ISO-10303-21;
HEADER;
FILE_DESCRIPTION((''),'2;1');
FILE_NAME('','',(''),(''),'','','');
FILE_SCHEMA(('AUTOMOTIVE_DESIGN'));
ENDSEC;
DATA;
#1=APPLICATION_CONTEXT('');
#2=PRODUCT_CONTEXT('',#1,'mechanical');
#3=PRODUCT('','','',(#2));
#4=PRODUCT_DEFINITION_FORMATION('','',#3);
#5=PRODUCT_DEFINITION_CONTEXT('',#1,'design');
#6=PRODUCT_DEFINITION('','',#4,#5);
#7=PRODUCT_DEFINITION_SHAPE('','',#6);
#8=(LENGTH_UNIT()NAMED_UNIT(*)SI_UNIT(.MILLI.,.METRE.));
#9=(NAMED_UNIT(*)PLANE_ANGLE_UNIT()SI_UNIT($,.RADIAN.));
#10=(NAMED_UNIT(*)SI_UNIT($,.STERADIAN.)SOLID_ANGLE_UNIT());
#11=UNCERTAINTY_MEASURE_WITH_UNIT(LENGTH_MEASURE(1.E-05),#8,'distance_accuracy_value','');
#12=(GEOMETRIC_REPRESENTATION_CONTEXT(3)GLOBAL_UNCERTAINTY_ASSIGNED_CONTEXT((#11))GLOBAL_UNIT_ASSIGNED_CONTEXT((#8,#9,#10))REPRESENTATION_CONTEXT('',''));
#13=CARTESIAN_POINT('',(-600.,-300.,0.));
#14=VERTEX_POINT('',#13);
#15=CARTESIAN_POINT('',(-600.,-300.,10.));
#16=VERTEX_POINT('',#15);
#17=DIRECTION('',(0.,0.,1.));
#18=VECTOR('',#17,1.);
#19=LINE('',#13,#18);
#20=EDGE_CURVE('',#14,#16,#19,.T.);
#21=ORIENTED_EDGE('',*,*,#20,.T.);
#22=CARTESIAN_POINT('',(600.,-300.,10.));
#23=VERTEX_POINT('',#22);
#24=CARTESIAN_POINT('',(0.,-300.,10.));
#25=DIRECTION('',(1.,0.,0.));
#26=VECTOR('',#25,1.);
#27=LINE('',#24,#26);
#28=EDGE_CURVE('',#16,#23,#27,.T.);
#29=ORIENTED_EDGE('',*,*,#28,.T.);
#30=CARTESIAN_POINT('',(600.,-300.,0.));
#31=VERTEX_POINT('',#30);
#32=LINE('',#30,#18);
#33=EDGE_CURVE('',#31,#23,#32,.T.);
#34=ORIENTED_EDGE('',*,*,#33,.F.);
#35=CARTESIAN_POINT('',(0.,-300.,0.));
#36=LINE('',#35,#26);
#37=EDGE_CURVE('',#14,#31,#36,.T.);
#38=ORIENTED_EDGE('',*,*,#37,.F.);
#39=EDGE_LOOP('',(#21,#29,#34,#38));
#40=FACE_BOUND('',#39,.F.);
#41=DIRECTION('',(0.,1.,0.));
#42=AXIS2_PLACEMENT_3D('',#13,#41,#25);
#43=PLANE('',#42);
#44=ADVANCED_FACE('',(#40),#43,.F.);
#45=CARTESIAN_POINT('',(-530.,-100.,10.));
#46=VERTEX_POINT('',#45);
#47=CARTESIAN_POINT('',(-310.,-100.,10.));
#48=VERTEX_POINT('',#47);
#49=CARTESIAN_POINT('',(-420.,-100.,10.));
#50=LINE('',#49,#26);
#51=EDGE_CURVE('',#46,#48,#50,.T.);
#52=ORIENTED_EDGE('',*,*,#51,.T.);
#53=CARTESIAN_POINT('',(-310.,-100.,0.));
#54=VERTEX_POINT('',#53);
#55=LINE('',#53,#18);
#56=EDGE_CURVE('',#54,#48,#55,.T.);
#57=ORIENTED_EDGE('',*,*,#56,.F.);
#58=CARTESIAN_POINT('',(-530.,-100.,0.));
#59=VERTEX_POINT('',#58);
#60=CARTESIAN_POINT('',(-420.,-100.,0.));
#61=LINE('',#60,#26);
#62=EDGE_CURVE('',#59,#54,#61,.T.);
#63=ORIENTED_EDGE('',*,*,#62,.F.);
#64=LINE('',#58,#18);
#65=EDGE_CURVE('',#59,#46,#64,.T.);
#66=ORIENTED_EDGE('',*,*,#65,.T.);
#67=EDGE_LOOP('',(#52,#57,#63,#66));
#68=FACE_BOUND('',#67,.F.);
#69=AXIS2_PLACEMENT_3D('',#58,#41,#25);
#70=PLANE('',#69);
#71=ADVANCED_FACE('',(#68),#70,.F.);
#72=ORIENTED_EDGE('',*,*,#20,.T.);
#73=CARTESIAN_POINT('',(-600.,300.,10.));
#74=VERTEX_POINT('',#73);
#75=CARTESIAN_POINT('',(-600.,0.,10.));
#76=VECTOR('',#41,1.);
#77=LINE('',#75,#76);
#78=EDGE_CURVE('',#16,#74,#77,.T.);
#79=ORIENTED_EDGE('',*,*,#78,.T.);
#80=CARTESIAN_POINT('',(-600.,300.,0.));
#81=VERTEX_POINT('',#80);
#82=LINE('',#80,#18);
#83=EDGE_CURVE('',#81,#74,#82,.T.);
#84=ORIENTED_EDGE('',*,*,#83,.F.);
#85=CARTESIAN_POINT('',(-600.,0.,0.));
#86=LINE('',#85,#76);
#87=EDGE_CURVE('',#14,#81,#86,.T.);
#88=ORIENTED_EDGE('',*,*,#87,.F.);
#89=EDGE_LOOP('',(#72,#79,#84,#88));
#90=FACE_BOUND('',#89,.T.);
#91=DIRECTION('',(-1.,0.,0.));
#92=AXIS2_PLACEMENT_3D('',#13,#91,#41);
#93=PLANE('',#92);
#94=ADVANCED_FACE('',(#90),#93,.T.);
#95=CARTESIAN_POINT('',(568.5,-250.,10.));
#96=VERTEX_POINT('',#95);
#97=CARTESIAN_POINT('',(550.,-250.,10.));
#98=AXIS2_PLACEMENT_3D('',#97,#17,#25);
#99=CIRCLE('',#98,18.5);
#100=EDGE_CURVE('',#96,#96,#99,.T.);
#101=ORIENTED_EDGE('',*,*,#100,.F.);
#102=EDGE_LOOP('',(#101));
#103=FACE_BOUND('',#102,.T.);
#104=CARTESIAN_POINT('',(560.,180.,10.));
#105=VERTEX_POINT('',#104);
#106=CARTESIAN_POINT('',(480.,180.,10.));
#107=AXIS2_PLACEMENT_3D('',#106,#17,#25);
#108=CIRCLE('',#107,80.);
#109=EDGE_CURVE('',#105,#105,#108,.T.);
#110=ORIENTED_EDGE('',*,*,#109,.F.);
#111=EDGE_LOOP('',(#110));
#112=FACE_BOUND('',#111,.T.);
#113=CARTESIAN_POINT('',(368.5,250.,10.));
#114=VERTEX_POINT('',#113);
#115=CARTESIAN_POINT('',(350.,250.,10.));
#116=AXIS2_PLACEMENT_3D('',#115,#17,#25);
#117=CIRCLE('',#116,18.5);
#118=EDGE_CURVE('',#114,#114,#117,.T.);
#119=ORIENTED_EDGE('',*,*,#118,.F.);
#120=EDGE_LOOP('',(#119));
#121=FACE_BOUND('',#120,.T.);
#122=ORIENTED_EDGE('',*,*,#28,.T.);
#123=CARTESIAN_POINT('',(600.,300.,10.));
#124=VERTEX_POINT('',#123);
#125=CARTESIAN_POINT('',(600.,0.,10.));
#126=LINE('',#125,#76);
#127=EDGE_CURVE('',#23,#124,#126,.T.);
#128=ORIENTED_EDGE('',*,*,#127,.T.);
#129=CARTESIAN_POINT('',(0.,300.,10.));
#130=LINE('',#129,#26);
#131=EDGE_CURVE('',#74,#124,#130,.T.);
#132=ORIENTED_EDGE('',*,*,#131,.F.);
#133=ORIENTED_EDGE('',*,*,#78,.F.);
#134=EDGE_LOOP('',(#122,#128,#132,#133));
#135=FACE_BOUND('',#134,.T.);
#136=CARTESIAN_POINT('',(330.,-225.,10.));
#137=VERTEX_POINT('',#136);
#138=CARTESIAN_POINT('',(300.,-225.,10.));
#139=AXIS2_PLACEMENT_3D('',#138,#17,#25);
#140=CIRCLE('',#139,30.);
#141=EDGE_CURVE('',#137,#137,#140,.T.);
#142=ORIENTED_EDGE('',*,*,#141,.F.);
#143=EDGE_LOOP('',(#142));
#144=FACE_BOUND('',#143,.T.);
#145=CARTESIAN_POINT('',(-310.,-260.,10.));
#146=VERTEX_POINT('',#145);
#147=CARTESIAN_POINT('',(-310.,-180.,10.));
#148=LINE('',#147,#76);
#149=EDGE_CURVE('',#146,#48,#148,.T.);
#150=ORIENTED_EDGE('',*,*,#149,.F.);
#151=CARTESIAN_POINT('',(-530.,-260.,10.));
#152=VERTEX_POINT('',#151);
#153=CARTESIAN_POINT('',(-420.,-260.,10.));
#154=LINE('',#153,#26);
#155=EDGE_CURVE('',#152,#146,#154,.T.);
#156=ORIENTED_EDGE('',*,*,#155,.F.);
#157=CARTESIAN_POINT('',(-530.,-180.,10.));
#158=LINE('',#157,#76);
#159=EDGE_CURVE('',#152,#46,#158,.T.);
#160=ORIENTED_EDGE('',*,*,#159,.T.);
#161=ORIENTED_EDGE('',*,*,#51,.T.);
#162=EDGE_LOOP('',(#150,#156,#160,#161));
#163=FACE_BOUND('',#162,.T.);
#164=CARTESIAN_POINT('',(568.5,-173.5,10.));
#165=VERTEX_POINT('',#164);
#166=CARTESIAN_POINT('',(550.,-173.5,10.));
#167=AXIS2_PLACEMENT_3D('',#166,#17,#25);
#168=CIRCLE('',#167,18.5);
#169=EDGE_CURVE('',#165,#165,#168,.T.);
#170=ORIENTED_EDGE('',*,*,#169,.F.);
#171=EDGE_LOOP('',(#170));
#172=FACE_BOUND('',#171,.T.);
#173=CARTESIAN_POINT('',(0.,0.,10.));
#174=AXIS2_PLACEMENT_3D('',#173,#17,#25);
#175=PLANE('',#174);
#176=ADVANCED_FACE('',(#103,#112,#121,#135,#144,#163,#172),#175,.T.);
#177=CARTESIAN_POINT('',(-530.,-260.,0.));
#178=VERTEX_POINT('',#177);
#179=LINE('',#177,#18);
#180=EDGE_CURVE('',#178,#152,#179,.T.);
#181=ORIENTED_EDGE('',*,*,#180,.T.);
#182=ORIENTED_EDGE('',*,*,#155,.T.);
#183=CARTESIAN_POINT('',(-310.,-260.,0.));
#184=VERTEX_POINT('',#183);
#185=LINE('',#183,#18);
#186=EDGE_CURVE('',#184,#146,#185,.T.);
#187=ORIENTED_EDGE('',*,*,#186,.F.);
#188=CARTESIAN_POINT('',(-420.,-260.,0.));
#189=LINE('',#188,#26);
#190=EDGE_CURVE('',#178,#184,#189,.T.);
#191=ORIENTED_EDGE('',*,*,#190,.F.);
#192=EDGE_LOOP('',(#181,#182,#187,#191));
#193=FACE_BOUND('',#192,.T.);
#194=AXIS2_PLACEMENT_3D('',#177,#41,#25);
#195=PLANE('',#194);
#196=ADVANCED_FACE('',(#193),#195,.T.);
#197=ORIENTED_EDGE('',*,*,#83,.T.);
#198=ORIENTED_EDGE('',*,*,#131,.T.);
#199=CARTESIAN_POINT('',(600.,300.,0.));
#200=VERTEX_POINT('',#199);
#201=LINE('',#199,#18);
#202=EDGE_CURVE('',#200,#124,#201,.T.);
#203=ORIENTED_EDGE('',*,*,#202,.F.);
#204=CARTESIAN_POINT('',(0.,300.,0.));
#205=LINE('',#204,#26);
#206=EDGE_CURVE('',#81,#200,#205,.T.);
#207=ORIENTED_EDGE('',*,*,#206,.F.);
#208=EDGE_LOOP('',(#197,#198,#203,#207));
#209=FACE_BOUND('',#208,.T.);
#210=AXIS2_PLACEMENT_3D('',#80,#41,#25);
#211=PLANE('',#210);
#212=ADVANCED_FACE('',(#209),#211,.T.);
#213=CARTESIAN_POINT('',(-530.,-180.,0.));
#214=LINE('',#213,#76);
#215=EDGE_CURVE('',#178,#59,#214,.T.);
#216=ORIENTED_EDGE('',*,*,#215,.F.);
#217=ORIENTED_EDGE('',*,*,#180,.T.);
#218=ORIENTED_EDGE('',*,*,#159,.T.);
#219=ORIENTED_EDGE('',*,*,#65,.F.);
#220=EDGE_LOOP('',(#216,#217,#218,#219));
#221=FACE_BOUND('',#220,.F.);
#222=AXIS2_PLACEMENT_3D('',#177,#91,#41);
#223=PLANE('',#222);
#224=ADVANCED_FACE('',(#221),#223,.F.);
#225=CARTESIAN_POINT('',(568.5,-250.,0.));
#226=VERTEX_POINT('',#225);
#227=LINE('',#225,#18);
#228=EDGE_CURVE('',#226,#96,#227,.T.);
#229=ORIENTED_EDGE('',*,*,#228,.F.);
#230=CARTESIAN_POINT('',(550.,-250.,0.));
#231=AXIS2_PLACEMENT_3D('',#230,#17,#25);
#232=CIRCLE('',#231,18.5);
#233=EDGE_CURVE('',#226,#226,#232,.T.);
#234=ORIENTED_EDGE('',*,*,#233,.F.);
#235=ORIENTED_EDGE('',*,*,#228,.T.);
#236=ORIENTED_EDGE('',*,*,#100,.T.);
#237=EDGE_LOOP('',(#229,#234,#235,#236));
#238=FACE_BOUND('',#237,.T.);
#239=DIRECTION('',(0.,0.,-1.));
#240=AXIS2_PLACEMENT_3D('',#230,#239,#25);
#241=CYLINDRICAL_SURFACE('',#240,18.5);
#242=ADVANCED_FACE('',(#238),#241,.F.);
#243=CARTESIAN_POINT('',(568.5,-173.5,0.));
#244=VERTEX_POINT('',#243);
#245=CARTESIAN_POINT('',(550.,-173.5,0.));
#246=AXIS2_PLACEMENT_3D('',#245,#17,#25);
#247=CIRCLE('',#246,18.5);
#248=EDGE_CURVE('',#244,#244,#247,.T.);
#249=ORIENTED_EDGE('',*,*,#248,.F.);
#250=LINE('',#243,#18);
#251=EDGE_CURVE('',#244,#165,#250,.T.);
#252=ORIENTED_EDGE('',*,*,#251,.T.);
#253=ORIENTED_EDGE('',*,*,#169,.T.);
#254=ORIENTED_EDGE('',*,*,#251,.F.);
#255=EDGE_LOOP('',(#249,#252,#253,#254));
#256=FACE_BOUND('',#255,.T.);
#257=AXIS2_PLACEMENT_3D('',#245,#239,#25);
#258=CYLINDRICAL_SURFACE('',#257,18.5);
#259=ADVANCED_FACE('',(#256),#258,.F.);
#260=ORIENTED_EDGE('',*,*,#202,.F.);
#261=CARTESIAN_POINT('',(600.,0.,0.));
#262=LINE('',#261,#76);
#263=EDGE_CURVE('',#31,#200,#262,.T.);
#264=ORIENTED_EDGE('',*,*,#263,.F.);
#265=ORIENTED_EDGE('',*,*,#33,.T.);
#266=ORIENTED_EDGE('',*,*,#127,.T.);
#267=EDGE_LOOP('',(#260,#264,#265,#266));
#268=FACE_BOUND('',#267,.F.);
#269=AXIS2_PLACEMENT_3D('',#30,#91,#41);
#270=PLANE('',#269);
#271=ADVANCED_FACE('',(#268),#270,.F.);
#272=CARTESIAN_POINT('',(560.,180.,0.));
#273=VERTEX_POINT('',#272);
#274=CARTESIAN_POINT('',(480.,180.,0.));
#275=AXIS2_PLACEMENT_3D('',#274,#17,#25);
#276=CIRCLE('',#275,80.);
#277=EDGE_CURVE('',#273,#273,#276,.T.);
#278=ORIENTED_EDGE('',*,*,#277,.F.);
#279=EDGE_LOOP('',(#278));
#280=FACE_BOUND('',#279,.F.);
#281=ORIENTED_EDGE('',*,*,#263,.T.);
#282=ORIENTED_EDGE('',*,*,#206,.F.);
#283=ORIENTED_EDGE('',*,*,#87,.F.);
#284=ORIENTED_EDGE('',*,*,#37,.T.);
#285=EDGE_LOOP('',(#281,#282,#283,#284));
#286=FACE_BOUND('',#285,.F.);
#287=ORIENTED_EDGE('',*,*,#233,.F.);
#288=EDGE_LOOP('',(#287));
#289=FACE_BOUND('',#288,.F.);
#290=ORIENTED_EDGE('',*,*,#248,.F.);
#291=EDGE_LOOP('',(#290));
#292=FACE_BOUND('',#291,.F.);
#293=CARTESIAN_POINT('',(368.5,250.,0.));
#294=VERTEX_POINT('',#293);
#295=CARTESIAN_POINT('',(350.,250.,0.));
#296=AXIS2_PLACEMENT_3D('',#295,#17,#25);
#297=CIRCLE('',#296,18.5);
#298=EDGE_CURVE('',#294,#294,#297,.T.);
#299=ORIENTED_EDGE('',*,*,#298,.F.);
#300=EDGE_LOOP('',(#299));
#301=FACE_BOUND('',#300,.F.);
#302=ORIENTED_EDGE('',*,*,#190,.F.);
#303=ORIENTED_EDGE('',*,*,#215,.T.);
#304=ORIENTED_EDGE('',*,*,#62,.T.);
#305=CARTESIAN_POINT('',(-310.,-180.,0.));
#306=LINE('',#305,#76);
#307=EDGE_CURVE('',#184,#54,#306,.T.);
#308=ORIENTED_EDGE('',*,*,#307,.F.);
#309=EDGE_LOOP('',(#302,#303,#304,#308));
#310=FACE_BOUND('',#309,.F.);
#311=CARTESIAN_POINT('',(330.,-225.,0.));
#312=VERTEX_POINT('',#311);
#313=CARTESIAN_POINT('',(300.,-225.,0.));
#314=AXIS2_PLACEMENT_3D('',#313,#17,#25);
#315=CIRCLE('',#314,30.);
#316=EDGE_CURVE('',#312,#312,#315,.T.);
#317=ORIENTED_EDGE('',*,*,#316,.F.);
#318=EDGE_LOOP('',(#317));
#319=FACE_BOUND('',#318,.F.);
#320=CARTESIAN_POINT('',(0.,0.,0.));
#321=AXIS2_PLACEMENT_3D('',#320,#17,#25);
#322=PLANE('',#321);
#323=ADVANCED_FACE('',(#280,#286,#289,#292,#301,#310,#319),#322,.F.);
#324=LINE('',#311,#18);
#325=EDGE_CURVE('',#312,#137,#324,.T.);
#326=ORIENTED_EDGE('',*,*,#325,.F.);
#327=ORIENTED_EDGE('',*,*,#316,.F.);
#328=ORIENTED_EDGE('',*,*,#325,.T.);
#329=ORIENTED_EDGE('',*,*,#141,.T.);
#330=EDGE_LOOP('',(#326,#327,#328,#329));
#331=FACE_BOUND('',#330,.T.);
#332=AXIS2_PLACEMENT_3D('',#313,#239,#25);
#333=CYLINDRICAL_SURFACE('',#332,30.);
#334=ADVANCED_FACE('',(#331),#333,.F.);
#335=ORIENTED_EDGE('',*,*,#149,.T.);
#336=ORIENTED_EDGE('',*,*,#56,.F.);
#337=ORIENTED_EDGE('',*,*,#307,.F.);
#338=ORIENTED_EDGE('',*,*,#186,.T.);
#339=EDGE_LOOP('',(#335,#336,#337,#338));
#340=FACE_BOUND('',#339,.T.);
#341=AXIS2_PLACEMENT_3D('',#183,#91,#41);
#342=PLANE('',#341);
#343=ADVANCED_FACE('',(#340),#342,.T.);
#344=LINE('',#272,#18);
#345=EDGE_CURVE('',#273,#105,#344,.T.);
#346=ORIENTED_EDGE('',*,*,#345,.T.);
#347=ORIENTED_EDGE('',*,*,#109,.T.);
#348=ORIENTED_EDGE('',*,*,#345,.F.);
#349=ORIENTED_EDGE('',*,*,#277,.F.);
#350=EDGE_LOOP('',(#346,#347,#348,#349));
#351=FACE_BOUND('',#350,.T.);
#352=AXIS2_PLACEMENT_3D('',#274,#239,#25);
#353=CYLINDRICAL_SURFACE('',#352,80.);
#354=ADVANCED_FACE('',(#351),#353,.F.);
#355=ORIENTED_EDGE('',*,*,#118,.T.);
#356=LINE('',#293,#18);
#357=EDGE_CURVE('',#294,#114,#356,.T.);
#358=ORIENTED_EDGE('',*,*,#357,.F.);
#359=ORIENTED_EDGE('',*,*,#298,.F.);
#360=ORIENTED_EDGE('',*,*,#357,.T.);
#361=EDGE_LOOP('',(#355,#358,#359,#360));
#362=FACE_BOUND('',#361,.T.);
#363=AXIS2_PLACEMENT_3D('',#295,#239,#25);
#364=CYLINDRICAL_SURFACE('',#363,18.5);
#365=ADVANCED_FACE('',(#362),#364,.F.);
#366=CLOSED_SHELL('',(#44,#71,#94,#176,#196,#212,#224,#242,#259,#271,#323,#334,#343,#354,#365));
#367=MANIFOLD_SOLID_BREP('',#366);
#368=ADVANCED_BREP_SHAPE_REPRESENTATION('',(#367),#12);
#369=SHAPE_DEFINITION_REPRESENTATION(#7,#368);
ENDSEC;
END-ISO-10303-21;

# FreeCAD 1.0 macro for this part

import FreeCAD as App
import Part
import Sketcher

V = App.Vector


def add_polygon(sketch, points):
    """Adds a closed chain of lines whose ends are joined by coincident constraints."""
    first, n = sketch.GeometryCount, len(points)
    for a, b in zip(points, points[1:] + points[:1]):
        sketch.addGeometry(Part.LineSegment(App.Vector(*a, 0), App.Vector(*b, 0)), False)
    for i in range(n):
        sketch.addConstraint(Sketcher.Constraint("Coincident", first + i, 2, first + (i + 1) % n, 1))

doc = App.newDocument("Part")
body = doc.addObject("PartDesign::Body", "Body")

sketch1 = doc.addObject("Sketcher::SketchObject", "Sketch")
body.addObject(sketch1)
sketch1.AttachmentSupport = (doc.XY_Plane, [""])
sketch1.MapMode = "FlatFace"
add_polygon(sketch1, [(-600, 300), (-600, -300), (600, -300), (600, 300)])
add_polygon(sketch1, [(-310, -260), (-530, -260), (-530, -100), (-310, -100)])
sketch1.addGeometry(Part.Circle(V(300, -225, 0), V(0, 0, 1), 30), False)
sketch1.addGeometry(Part.Circle(V(550, -250, 0), V(0, 0, 1), 18.5), False)
sketch1.addGeometry(Part.Circle(V(550, -173.5, 0), V(0, 0, 1), 18.5), False)
sketch1.addGeometry(Part.Circle(V(480, 180, 0), V(0, 0, 1), 80), False)
sketch1.addGeometry(Part.Circle(V(350, 250, 0), V(0, 0, 1), 18.5), False)
sketch1.addConstraint(Sketcher.Constraint("Vertical", 0))
sketch1.addConstraint(Sketcher.Constraint("Horizontal", 1))
sketch1.addConstraint(Sketcher.Constraint("Vertical", 2))
sketch1.addConstraint(Sketcher.Constraint("Horizontal", 3))
sketch1.addConstraint(Sketcher.Constraint("Horizontal", 4))
sketch1.addConstraint(Sketcher.Constraint("Vertical", 5))
sketch1.addConstraint(Sketcher.Constraint("Horizontal", 6))
sketch1.addConstraint(Sketcher.Constraint("Vertical", 7))
sketch1.addConstraint(Sketcher.Constraint("Equal", 9, 10))
sketch1.addConstraint(Sketcher.Constraint("Equal", 10, 12))
sketch1.addConstraint(Sketcher.Constraint("Symmetric", 0, 2, 2, 2, -1, 1))
sketch1.addConstraint(Sketcher.Constraint("Vertical", 9, 3, 10, 3))
sketch1.addConstraint(Sketcher.Constraint("Diameter", 8, 60.0))
sketch1.addConstraint(Sketcher.Constraint("Diameter", 9, 37.0))
sketch1.addConstraint(Sketcher.Constraint("Diameter", 11, 160.0))
sketch1.addConstraint(Sketcher.Constraint("DistanceX", 1, 1, 1, 2, 1200.0))
sketch1.addConstraint(Sketcher.Constraint("DistanceX", 4, 2, 4, 1, 220.0))
sketch1.addConstraint(Sketcher.Constraint("DistanceY", 0, 2, 0, 1, 600.0))
sketch1.addConstraint(Sketcher.Constraint("DistanceY", 5, 1, 5, 2, 160.0))
sketch1.addConstraint(Sketcher.Constraint("DistanceX", -1, 1, 8, 3, 300.0))
sketch1.addConstraint(Sketcher.Constraint("DistanceY", 8, 3, -1, 1, 225.0))
sketch1.addConstraint(Sketcher.Constraint("DistanceX", -1, 1, 9, 3, 550.0))
sketch1.addConstraint(Sketcher.Constraint("DistanceY", 9, 3, -1, 1, 250.0))
sketch1.addConstraint(Sketcher.Constraint("DistanceX", -1, 1, 11, 3, 480.0))
sketch1.addConstraint(Sketcher.Constraint("DistanceY", -1, 1, 11, 3, 180.0))
sketch1.addConstraint(Sketcher.Constraint("DistanceX", -1, 1, 12, 3, 350.0))
sketch1.addConstraint(Sketcher.Constraint("DistanceY", -1, 1, 12, 3, 250.0))
sketch1.addConstraint(Sketcher.Constraint("DistanceX", 4, 2, -1, 1, 530.0))
sketch1.addConstraint(Sketcher.Constraint("DistanceY", 4, 2, -1, 1, 260.0))
sketch1.addConstraint(Sketcher.Constraint("DistanceY", 10, 3, -1, 1, 173.5))
pad1 = doc.addObject("PartDesign::Pad", "Pad")
body.addObject(pad1)
pad1.Profile = sketch1
pad1.Length = 10

doc.recompute()
